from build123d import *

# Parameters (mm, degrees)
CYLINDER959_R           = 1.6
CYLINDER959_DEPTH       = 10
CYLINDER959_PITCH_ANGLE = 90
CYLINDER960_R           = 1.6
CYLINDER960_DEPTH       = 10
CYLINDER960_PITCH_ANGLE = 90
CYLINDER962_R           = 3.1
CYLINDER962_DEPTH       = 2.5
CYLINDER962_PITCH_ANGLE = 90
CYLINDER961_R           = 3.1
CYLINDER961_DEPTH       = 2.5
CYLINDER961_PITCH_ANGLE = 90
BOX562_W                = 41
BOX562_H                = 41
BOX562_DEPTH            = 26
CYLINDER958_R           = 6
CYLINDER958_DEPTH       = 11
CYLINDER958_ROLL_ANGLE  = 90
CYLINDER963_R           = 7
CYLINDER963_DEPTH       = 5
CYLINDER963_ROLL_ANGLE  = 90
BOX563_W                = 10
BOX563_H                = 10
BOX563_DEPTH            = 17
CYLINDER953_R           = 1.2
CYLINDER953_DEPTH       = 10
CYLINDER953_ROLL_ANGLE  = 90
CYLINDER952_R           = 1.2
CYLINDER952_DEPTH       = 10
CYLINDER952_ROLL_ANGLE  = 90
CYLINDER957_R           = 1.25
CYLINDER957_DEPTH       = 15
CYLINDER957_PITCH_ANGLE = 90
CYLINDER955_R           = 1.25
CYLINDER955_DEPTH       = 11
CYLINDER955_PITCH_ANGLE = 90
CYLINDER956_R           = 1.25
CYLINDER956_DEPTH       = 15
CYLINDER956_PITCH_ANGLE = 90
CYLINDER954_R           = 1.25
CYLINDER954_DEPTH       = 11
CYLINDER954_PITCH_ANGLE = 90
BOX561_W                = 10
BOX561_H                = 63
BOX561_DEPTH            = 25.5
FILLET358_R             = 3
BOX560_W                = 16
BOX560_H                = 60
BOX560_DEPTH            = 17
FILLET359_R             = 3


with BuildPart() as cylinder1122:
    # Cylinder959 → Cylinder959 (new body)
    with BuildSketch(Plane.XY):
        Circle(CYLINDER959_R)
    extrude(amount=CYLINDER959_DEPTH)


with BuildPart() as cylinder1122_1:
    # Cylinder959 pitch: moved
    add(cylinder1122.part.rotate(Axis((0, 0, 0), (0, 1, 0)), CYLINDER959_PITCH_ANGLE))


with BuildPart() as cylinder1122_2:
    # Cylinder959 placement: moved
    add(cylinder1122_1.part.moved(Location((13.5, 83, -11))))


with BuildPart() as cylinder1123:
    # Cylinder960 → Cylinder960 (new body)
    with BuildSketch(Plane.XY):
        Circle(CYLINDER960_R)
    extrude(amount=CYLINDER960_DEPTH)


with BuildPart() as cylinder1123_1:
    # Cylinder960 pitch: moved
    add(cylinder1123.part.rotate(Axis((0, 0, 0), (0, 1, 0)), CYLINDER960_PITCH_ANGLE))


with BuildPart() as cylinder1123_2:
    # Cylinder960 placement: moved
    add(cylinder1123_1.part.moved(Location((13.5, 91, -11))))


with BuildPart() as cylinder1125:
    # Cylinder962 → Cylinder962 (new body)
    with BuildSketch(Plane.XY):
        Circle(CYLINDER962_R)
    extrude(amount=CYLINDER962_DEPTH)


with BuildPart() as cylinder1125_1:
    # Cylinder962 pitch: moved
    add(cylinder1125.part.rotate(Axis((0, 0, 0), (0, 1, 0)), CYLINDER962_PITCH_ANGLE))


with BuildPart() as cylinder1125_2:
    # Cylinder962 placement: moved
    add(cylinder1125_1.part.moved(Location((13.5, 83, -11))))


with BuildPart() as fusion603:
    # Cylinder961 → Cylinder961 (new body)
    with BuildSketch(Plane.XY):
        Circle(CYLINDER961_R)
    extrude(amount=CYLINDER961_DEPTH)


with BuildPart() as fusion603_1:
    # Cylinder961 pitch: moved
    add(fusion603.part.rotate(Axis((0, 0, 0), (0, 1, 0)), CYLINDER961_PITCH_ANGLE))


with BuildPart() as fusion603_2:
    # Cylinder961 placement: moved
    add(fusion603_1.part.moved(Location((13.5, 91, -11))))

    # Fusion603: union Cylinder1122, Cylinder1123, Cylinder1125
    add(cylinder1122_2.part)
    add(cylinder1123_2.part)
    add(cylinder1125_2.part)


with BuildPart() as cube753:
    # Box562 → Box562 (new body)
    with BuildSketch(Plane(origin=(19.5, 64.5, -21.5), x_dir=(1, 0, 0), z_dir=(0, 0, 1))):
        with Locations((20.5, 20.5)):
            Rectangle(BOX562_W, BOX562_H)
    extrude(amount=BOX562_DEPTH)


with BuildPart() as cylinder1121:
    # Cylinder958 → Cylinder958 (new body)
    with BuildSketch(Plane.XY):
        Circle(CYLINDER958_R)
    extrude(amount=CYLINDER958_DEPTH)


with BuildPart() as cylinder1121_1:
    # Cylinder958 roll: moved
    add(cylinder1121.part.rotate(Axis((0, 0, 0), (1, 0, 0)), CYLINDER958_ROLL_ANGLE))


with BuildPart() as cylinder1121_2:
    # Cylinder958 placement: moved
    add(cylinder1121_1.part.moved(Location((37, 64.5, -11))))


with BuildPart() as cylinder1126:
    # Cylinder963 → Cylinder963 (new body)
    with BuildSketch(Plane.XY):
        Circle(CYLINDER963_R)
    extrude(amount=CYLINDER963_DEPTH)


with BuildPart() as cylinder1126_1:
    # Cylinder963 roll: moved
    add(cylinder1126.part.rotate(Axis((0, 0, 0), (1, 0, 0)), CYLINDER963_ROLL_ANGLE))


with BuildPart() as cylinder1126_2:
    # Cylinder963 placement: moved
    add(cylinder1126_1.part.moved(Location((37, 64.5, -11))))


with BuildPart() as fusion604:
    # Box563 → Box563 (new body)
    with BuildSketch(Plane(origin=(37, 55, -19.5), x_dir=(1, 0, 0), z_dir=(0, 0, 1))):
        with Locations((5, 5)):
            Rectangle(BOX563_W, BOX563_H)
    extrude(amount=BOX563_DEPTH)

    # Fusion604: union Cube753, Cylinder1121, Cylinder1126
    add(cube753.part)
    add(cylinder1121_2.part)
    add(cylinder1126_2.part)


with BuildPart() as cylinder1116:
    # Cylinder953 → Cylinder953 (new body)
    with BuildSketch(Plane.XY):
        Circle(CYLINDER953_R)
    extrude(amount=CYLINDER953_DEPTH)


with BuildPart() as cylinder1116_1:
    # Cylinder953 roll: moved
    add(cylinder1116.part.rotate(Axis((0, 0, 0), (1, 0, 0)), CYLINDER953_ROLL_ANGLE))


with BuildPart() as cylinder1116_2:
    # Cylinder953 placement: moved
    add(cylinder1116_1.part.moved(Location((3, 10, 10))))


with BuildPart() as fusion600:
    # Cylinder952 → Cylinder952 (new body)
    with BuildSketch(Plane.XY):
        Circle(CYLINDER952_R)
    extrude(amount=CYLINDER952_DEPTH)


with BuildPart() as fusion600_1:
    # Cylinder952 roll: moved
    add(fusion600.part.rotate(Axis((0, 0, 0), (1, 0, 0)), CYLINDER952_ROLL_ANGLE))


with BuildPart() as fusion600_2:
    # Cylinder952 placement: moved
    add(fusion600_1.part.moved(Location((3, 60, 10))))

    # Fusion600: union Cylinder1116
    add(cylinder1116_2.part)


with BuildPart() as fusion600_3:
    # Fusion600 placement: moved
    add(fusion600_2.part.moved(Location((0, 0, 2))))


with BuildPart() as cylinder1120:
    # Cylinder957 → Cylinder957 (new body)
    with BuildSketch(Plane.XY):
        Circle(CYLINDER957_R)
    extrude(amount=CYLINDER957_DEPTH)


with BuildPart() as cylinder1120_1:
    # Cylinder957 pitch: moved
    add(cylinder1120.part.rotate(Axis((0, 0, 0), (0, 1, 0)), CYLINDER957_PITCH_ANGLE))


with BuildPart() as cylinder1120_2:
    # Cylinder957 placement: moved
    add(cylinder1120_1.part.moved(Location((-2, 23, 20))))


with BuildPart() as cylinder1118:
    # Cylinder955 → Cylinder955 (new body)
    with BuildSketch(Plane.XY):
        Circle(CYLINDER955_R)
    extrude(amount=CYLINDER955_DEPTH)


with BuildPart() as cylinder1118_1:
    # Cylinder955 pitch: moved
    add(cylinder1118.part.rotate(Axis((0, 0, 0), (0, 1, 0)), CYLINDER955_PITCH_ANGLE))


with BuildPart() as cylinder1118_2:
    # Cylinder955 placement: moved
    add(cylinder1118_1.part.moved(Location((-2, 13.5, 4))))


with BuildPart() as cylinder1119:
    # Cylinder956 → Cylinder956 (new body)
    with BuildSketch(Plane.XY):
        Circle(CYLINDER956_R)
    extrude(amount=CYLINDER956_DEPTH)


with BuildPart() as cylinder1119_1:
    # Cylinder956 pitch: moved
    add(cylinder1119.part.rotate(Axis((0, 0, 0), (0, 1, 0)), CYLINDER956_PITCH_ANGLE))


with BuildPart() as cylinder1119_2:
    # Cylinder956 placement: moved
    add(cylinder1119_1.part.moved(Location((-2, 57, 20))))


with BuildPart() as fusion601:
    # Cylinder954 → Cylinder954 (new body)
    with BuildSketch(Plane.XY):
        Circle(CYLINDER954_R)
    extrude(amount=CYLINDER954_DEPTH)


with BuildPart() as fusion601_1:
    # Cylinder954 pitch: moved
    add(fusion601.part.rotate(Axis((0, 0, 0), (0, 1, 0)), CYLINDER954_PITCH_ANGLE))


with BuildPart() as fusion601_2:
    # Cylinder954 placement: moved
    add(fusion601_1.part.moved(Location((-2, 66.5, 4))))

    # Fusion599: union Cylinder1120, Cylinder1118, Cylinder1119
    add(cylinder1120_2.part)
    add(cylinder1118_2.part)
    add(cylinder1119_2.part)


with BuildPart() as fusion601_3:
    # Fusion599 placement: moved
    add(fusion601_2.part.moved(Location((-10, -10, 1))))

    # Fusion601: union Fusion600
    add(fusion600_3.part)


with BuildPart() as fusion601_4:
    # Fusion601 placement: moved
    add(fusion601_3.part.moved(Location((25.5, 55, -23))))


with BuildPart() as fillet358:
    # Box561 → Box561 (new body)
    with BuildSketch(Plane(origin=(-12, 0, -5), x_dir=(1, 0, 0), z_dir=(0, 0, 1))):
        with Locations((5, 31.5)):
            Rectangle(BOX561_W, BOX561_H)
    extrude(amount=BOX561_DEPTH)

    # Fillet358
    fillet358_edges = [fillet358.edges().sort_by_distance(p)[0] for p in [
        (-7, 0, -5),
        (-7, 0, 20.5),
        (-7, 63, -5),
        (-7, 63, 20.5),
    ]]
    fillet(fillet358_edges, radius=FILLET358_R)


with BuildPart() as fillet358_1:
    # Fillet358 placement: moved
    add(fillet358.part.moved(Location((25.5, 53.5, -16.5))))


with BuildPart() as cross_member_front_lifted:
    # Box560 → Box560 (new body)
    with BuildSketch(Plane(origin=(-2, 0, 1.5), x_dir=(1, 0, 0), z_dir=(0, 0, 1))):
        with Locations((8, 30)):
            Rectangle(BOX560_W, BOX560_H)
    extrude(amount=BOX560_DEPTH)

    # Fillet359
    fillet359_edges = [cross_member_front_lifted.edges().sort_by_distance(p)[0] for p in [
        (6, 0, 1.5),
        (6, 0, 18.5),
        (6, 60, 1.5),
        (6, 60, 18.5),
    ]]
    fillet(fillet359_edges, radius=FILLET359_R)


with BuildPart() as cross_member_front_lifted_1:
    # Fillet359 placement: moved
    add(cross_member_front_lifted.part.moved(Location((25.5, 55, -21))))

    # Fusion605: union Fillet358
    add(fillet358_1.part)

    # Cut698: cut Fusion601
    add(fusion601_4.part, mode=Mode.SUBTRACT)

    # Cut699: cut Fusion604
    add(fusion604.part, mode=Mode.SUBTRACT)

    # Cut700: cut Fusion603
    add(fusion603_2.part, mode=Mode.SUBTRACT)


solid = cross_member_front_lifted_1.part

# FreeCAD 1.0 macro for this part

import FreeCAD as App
import Part
import Sketcher


def edges_at(feature, points):
    """Names of the edges that pass closest to the given points."""
    edges = feature.Shape.Edges
    near = lambda p: min(range(len(edges)), key=lambda i: edges[i].distToShape(Part.Vertex(*p))[0])
    return sorted({f"Edge{near(p) + 1}" for p in points})


def add_polygon(sketch, points):
    """Adds a closed chain of lines whose ends are joined by coincident constraints."""
    first, n = sketch.GeometryCount, len(points)
    for a, b in zip(points, points[1:] + points[:1]):
        sketch.addGeometry(Part.LineSegment(App.Vector(*a, 0), App.Vector(*b, 0)), False)
    for i in range(n):
        sketch.addConstraint(Sketcher.Constraint("Coincident", first + i, 2, first + (i + 1) % n, 1))

doc = App.newDocument("Part")
body = doc.addObject("PartDesign::Body", "Body")

# Sketch on XY plane
sketch1 = body.newObject("Sketcher::SketchObject", "Sketch")
sketch1.AttachmentSupport = (doc.getObject("XY_Plane"), [""])
sketch1.MapMode = "FlatFace"
sketch1.addGeometry(Part.Circle(App.Vector(0, 0, 0), App.Vector(0, 0, 1), 1.6), False)
sketch1.addConstraint([
    Sketcher.Constraint("Coincident", 0, 3, -1, 1),
    Sketcher.Constraint("Diameter", 0, 3.2),
])
pad1 = body.newObject("PartDesign::Pad", "Pad")
pad1.Profile = sketch1
pad1.Length = 10
body2 = doc.addObject("PartDesign::Body", "Body001")
doc.recompute()

body.Placement = App.Placement(App.Vector(0, 0, 0), App.Rotation(App.Vector(0, 1, 0), 90))
boolean = body2.newObject("PartDesign::Boolean", "Boolean")
boolean.Type = "Fuse"
boolean.addObjects([body])
body3 = doc.addObject("PartDesign::Body", "Body002")
doc.recompute()

body2.Placement = App.Placement(App.Vector(13.5, 83, -11), App.Rotation(App.Vector(0, 0, 1), 0))
boolean2 = body3.newObject("PartDesign::Boolean", "Boolean001")
boolean2.Type = "Fuse"
boolean2.addObjects([body2])
body4 = doc.addObject("PartDesign::Body", "Body003")

# Sketch on XY plane
sketch2 = body4.newObject("Sketcher::SketchObject", "Sketch001")
sketch2.AttachmentSupport = (doc.getObject("XY_Plane003"), [""])
sketch2.MapMode = "FlatFace"
sketch2.addGeometry(Part.Circle(App.Vector(0, 0, 0), App.Vector(0, 0, 1), 1.6), False)
sketch2.addConstraint([
    Sketcher.Constraint("Coincident", 0, 3, -1, 1),
    Sketcher.Constraint("Diameter", 0, 3.2),
])
pad2 = body4.newObject("PartDesign::Pad", "Pad001")
pad2.Profile = sketch2
pad2.Length = 10
body5 = doc.addObject("PartDesign::Body", "Body004")
doc.recompute()

body4.Placement = App.Placement(App.Vector(0, 0, 0), App.Rotation(App.Vector(0, 1, 0), 90))
boolean3 = body5.newObject("PartDesign::Boolean", "Boolean002")
boolean3.Type = "Fuse"
boolean3.addObjects([body4])
body6 = doc.addObject("PartDesign::Body", "Body005")
doc.recompute()

body5.Placement = App.Placement(App.Vector(13.5, 91, -11), App.Rotation(App.Vector(0, 0, 1), 0))
boolean4 = body6.newObject("PartDesign::Boolean", "Boolean003")
boolean4.Type = "Fuse"
boolean4.addObjects([body5])
body7 = doc.addObject("PartDesign::Body", "Body006")

# Sketch on XY plane
sketch3 = body7.newObject("Sketcher::SketchObject", "Sketch002")
sketch3.AttachmentSupport = (doc.getObject("XY_Plane006"), [""])
sketch3.MapMode = "FlatFace"
sketch3.addGeometry(Part.Circle(App.Vector(0, 0, 0), App.Vector(0, 0, 1), 3.1), False)
sketch3.addConstraint([
    Sketcher.Constraint("Coincident", 0, 3, -1, 1),
    Sketcher.Constraint("Diameter", 0, 6.2),
])
pad3 = body7.newObject("PartDesign::Pad", "Pad002")
pad3.Profile = sketch3
pad3.Length = 2.5
body8 = doc.addObject("PartDesign::Body", "Body007")
doc.recompute()

body7.Placement = App.Placement(App.Vector(0, 0, 0), App.Rotation(App.Vector(0, 1, 0), 90))
boolean5 = body8.newObject("PartDesign::Boolean", "Boolean004")
boolean5.Type = "Fuse"
boolean5.addObjects([body7])
body9 = doc.addObject("PartDesign::Body", "Body008")
doc.recompute()

body8.Placement = App.Placement(App.Vector(13.5, 83, -11), App.Rotation(App.Vector(0, 0, 1), 0))
boolean6 = body9.newObject("PartDesign::Boolean", "Boolean005")
boolean6.Type = "Fuse"
boolean6.addObjects([body8])
body10 = doc.addObject("PartDesign::Body", "Body009")

# Sketch on XY plane
sketch4 = body10.newObject("Sketcher::SketchObject", "Sketch003")
sketch4.AttachmentSupport = (doc.getObject("XY_Plane009"), [""])
sketch4.MapMode = "FlatFace"
sketch4.addGeometry(Part.Circle(App.Vector(0, 0, 0), App.Vector(0, 0, 1), 3.1), False)
sketch4.addConstraint([
    Sketcher.Constraint("Coincident", 0, 3, -1, 1),
    Sketcher.Constraint("Diameter", 0, 6.2),
])
pad4 = body10.newObject("PartDesign::Pad", "Pad003")
pad4.Profile = sketch4
pad4.Length = 2.5
body11 = doc.addObject("PartDesign::Body", "Body010")
doc.recompute()

body10.Placement = App.Placement(App.Vector(0, 0, 0), App.Rotation(App.Vector(0, 1, 0), 90))
boolean7 = body11.newObject("PartDesign::Boolean", "Boolean006")
boolean7.Type = "Fuse"
boolean7.addObjects([body10])
body12 = doc.addObject("PartDesign::Body", "Body011")
body12.AllowCompound = True
doc.recompute()

body11.Placement = App.Placement(App.Vector(13.5, 91, -11), App.Rotation(App.Vector(0, 0, 1), 0))
boolean8 = body12.newObject("PartDesign::Boolean", "Boolean007")
boolean8.Type = "Fuse"
boolean8.addObjects([body11])
doc.recompute()

boolean9 = body12.newObject("PartDesign::Boolean", "Boolean008")
boolean9.Type = "Fuse"
boolean9.addObjects([body3])
doc.recompute()

boolean10 = body12.newObject("PartDesign::Boolean", "Boolean009")
boolean10.Type = "Fuse"
boolean10.addObjects([body6])
doc.recompute()

boolean11 = body12.newObject("PartDesign::Boolean", "Boolean010")
boolean11.Type = "Fuse"
boolean11.addObjects([body9])
body13 = doc.addObject("PartDesign::Body", "Body012")

# Sketch on XY plane
sketch5 = body13.newObject("Sketcher::SketchObject", "Sketch004")
sketch5.AttachmentSupport = (doc.getObject("XY_Plane012"), [""])
sketch5.MapMode = "FlatFace"
sketch5.AttachmentOffset = App.Placement(App.Vector(0, 0, -21.5), App.Rotation())
add_polygon(sketch5, [(20, 106), (20, 64), (60, 64), (60, 106)])  # lines 0-3
sketch5.addConstraint([
    Sketcher.Constraint("Vertical", 0),
    Sketcher.Constraint("Horizontal", 1),
    Sketcher.Constraint("Vertical", 2),
    Sketcher.Constraint("Horizontal", 3),
    Sketcher.Constraint("Equal", 3, 0),
    Sketcher.Constraint("DistanceX", 1, 1, 1, 2, 41.0),
    Sketcher.Constraint("DistanceX", -1, 1, 0, 2, 19.5),
    Sketcher.Constraint("DistanceY", -1, 1, 0, 2, 64.5),
])
pad5 = body13.newObject("PartDesign::Pad", "Pad004")
pad5.Profile = sketch5
pad5.Length = 26
body14 = doc.addObject("PartDesign::Body", "Body013")

# Sketch on XY plane
sketch6 = body14.newObject("Sketcher::SketchObject", "Sketch005")
sketch6.AttachmentSupport = (doc.getObject("XY_Plane013"), [""])
sketch6.MapMode = "FlatFace"
sketch6.addGeometry(Part.Circle(App.Vector(0, 0, 0), App.Vector(0, 0, 1), 6), False)
sketch6.addConstraint([
    Sketcher.Constraint("Coincident", 0, 3, -1, 1),
    Sketcher.Constraint("Diameter", 0, 12.0),
])
pad6 = body14.newObject("PartDesign::Pad", "Pad005")
pad6.Profile = sketch6
pad6.Length = 11
body15 = doc.addObject("PartDesign::Body", "Body014")
doc.recompute()

body14.Placement = App.Placement(App.Vector(0, 0, 0), App.Rotation(App.Vector(1, 0, 0), 90))
boolean12 = body15.newObject("PartDesign::Boolean", "Boolean011")
boolean12.Type = "Fuse"
boolean12.addObjects([body14])
body16 = doc.addObject("PartDesign::Body", "Body015")
doc.recompute()

body15.Placement = App.Placement(App.Vector(37, 64.5, -11), App.Rotation(App.Vector(0, 0, 1), 0))
boolean13 = body16.newObject("PartDesign::Boolean", "Boolean012")
boolean13.Type = "Fuse"
boolean13.addObjects([body15])
body17 = doc.addObject("PartDesign::Body", "Body016")

# Sketch on XY plane
sketch7 = body17.newObject("Sketcher::SketchObject", "Sketch006")
sketch7.AttachmentSupport = (doc.getObject("XY_Plane016"), [""])
sketch7.MapMode = "FlatFace"
sketch7.addGeometry(Part.Circle(App.Vector(0, 0, 0), App.Vector(0, 0, 1), 7), False)
sketch7.addConstraint([
    Sketcher.Constraint("Coincident", 0, 3, -1, 1),
    Sketcher.Constraint("Diameter", 0, 14.0),
])
pad7 = body17.newObject("PartDesign::Pad", "Pad006")
pad7.Profile = sketch7
pad7.Length = 5
body18 = doc.addObject("PartDesign::Body", "Body017")
doc.recompute()

body17.Placement = App.Placement(App.Vector(0, 0, 0), App.Rotation(App.Vector(1, 0, 0), 90))
boolean14 = body18.newObject("PartDesign::Boolean", "Boolean013")
boolean14.Type = "Fuse"
boolean14.addObjects([body17])
body19 = doc.addObject("PartDesign::Body", "Body018")
doc.recompute()

body18.Placement = App.Placement(App.Vector(37, 64.5, -11), App.Rotation(App.Vector(0, 0, 1), 0))
boolean15 = body19.newObject("PartDesign::Boolean", "Boolean014")
boolean15.Type = "Fuse"
boolean15.addObjects([body18])
body20 = doc.addObject("PartDesign::Body", "Body019")

# Sketch on XY plane
sketch8 = body20.newObject("Sketcher::SketchObject", "Sketch007")
sketch8.AttachmentSupport = (doc.getObject("XY_Plane019"), [""])
sketch8.MapMode = "FlatFace"
sketch8.AttachmentOffset = App.Placement(App.Vector(0, 0, -19.5), App.Rotation())
add_polygon(sketch8, [(37, 65), (37, 55), (47, 55), (47, 65)])  # lines 0-3
sketch8.addConstraint([
    Sketcher.Constraint("Vertical", 0),
    Sketcher.Constraint("Horizontal", 1),
    Sketcher.Constraint("Vertical", 2),
    Sketcher.Constraint("Horizontal", 3),
    Sketcher.Constraint("Equal", 3, 0),
    Sketcher.Constraint("DistanceX", 1, 1, 1, 2, 10.0),
    Sketcher.Constraint("DistanceX", -1, 1, 0, 2, 37.0),
    Sketcher.Constraint("DistanceY", -1, 1, 0, 2, 55.0),
])
pad8 = body20.newObject("PartDesign::Pad", "Pad007")
pad8.Profile = sketch8
pad8.Length = 17
doc.recompute()

boolean16 = body20.newObject("PartDesign::Boolean", "Boolean015")
boolean16.Type = "Fuse"
boolean16.addObjects([body13])
doc.recompute()

boolean17 = body20.newObject("PartDesign::Boolean", "Boolean016")
boolean17.Type = "Fuse"
boolean17.addObjects([body16])
doc.recompute()

boolean18 = body20.newObject("PartDesign::Boolean", "Boolean017")
boolean18.Type = "Fuse"
boolean18.addObjects([body19])
body21 = doc.addObject("PartDesign::Body", "Body020")

# Sketch on XY plane
sketch9 = body21.newObject("Sketcher::SketchObject", "Sketch008")
sketch9.AttachmentSupport = (doc.getObject("XY_Plane020"), [""])
sketch9.MapMode = "FlatFace"
sketch9.addGeometry(Part.Circle(App.Vector(0, 0, 0), App.Vector(0, 0, 1), 1.2), False)
sketch9.addConstraint([
    Sketcher.Constraint("Coincident", 0, 3, -1, 1),
    Sketcher.Constraint("Diameter", 0, 2.4),
])
pad9 = body21.newObject("PartDesign::Pad", "Pad008")
pad9.Profile = sketch9
pad9.Length = 10
body22 = doc.addObject("PartDesign::Body", "Body021")
doc.recompute()

body21.Placement = App.Placement(App.Vector(0, 0, 0), App.Rotation(App.Vector(1, 0, 0), 90))
boolean19 = body22.newObject("PartDesign::Boolean", "Boolean018")
boolean19.Type = "Fuse"
boolean19.addObjects([body21])
body23 = doc.addObject("PartDesign::Body", "Body022")
doc.recompute()

body22.Placement = App.Placement(App.Vector(3, 10, 10), App.Rotation(App.Vector(0, 0, 1), 0))
boolean20 = body23.newObject("PartDesign::Boolean", "Boolean019")
boolean20.Type = "Fuse"
boolean20.addObjects([body22])
body24 = doc.addObject("PartDesign::Body", "Body023")

# Sketch on XY plane
sketch10 = body24.newObject("Sketcher::SketchObject", "Sketch009")
sketch10.AttachmentSupport = (doc.getObject("XY_Plane023"), [""])
sketch10.MapMode = "FlatFace"
sketch10.addGeometry(Part.Circle(App.Vector(0, 0, 0), App.Vector(0, 0, 1), 1.2), False)
sketch10.addConstraint([
    Sketcher.Constraint("Coincident", 0, 3, -1, 1),
    Sketcher.Constraint("Diameter", 0, 2.4),
])
pad10 = body24.newObject("PartDesign::Pad", "Pad009")
pad10.Profile = sketch10
pad10.Length = 10
body25 = doc.addObject("PartDesign::Body", "Body024")
doc.recompute()

body24.Placement = App.Placement(App.Vector(0, 0, 0), App.Rotation(App.Vector(1, 0, 0), 90))
boolean21 = body25.newObject("PartDesign::Boolean", "Boolean020")
boolean21.Type = "Fuse"
boolean21.addObjects([body24])
body26 = doc.addObject("PartDesign::Body", "Body025")
body26.AllowCompound = True
doc.recompute()

body25.Placement = App.Placement(App.Vector(3, 60, 10), App.Rotation(App.Vector(0, 0, 1), 0))
boolean22 = body26.newObject("PartDesign::Boolean", "Boolean021")
boolean22.Type = "Fuse"
boolean22.addObjects([body25])
doc.recompute()

boolean23 = body26.newObject("PartDesign::Boolean", "Boolean022")
boolean23.Type = "Fuse"
boolean23.addObjects([body23])
body27 = doc.addObject("PartDesign::Body", "Body026")
body27.AllowCompound = True
doc.recompute()

body26.Placement = App.Placement(App.Vector(0, 0, 2), App.Rotation(App.Vector(0, 0, 1), 0))
boolean24 = body27.newObject("PartDesign::Boolean", "Boolean023")
boolean24.Type = "Fuse"
boolean24.addObjects([body26])
body28 = doc.addObject("PartDesign::Body", "Body027")

# Sketch on XY plane
sketch11 = body28.newObject("Sketcher::SketchObject", "Sketch010")
sketch11.AttachmentSupport = (doc.getObject("XY_Plane027"), [""])
sketch11.MapMode = "FlatFace"
sketch11.addGeometry(Part.Circle(App.Vector(0, 0, 0), App.Vector(0, 0, 1), 1.2), False)
sketch11.addConstraint([
    Sketcher.Constraint("Coincident", 0, 3, -1, 1),
    Sketcher.Constraint("Diameter", 0, 2.5),
])
pad11 = body28.newObject("PartDesign::Pad", "Pad010")
pad11.Profile = sketch11
pad11.Length = 15
body29 = doc.addObject("PartDesign::Body", "Body028")
doc.recompute()

body28.Placement = App.Placement(App.Vector(0, 0, 0), App.Rotation(App.Vector(0, 1, 0), 90))
boolean25 = body29.newObject("PartDesign::Boolean", "Boolean024")
boolean25.Type = "Fuse"
boolean25.addObjects([body28])
body30 = doc.addObject("PartDesign::Body", "Body029")
doc.recompute()

body29.Placement = App.Placement(App.Vector(-2, 23, 20), App.Rotation(App.Vector(0, 0, 1), 0))
boolean26 = body30.newObject("PartDesign::Boolean", "Boolean025")
boolean26.Type = "Fuse"
boolean26.addObjects([body29])
body31 = doc.addObject("PartDesign::Body", "Body030")

# Sketch on XY plane
sketch12 = body31.newObject("Sketcher::SketchObject", "Sketch011")
sketch12.AttachmentSupport = (doc.getObject("XY_Plane030"), [""])
sketch12.MapMode = "FlatFace"
sketch12.addGeometry(Part.Circle(App.Vector(0, 0, 0), App.Vector(0, 0, 1), 1.2), False)
sketch12.addConstraint([
    Sketcher.Constraint("Coincident", 0, 3, -1, 1),
    Sketcher.Constraint("Diameter", 0, 2.5),
])
pad12 = body31.newObject("PartDesign::Pad", "Pad011")
pad12.Profile = sketch12
pad12.Length = 11
body32 = doc.addObject("PartDesign::Body", "Body031")
doc.recompute()

body31.Placement = App.Placement(App.Vector(0, 0, 0), App.Rotation(App.Vector(0, 1, 0), 90))
boolean27 = body32.newObject("PartDesign::Boolean", "Boolean026")
boolean27.Type = "Fuse"
boolean27.addObjects([body31])
body33 = doc.addObject("PartDesign::Body", "Body032")
doc.recompute()

body32.Placement = App.Placement(App.Vector(-2, 13.5, 4), App.Rotation(App.Vector(0, 0, 1), 0))
boolean28 = body33.newObject("PartDesign::Boolean", "Boolean027")
boolean28.Type = "Fuse"
boolean28.addObjects([body32])
body34 = doc.addObject("PartDesign::Body", "Body033")

# Sketch on XY plane
sketch13 = body34.newObject("Sketcher::SketchObject", "Sketch012")
sketch13.AttachmentSupport = (doc.getObject("XY_Plane033"), [""])
sketch13.MapMode = "FlatFace"
sketch13.addGeometry(Part.Circle(App.Vector(0, 0, 0), App.Vector(0, 0, 1), 1.2), False)
sketch13.addConstraint([
    Sketcher.Constraint("Coincident", 0, 3, -1, 1),
    Sketcher.Constraint("Diameter", 0, 2.5),
])
pad13 = body34.newObject("PartDesign::Pad", "Pad012")
pad13.Profile = sketch13
pad13.Length = 15
body35 = doc.addObject("PartDesign::Body", "Body034")
doc.recompute()

body34.Placement = App.Placement(App.Vector(0, 0, 0), App.Rotation(App.Vector(0, 1, 0), 90))
boolean29 = body35.newObject("PartDesign::Boolean", "Boolean028")
boolean29.Type = "Fuse"
boolean29.addObjects([body34])
body36 = doc.addObject("PartDesign::Body", "Body035")
doc.recompute()

body35.Placement = App.Placement(App.Vector(-2, 57, 20), App.Rotation(App.Vector(0, 0, 1), 0))
boolean30 = body36.newObject("PartDesign::Boolean", "Boolean029")
boolean30.Type = "Fuse"
boolean30.addObjects([body35])
body37 = doc.addObject("PartDesign::Body", "Body036")

# Sketch on XY plane
sketch14 = body37.newObject("Sketcher::SketchObject", "Sketch013")
sketch14.AttachmentSupport = (doc.getObject("XY_Plane036"), [""])
sketch14.MapMode = "FlatFace"
sketch14.addGeometry(Part.Circle(App.Vector(0, 0, 0), App.Vector(0, 0, 1), 1.2), False)
sketch14.addConstraint([
    Sketcher.Constraint("Coincident", 0, 3, -1, 1),
    Sketcher.Constraint("Diameter", 0, 2.5),
])
pad14 = body37.newObject("PartDesign::Pad", "Pad013")
pad14.Profile = sketch14
pad14.Length = 11
body38 = doc.addObject("PartDesign::Body", "Body037")
doc.recompute()

body37.Placement = App.Placement(App.Vector(0, 0, 0), App.Rotation(App.Vector(0, 1, 0), 90))
boolean31 = body38.newObject("PartDesign::Boolean", "Boolean030")
boolean31.Type = "Fuse"
boolean31.addObjects([body37])
body39 = doc.addObject("PartDesign::Body", "Body038")
body39.AllowCompound = True
doc.recompute()

body38.Placement = App.Placement(App.Vector(-2, 66.5, 4), App.Rotation(App.Vector(0, 0, 1), 0))
boolean32 = body39.newObject("PartDesign::Boolean", "Boolean031")
boolean32.Type = "Fuse"
boolean32.addObjects([body38])
doc.recompute()

boolean33 = body39.newObject("PartDesign::Boolean", "Boolean032")
boolean33.Type = "Fuse"
boolean33.addObjects([body30])
doc.recompute()

boolean34 = body39.newObject("PartDesign::Boolean", "Boolean033")
boolean34.Type = "Fuse"
boolean34.addObjects([body33])
doc.recompute()

boolean35 = body39.newObject("PartDesign::Boolean", "Boolean034")
boolean35.Type = "Fuse"
boolean35.addObjects([body36])
body40 = doc.addObject("PartDesign::Body", "Body039")
body40.AllowCompound = True
doc.recompute()

body39.Placement = App.Placement(App.Vector(-10, -10, 1), App.Rotation(App.Vector(0, 0, 1), 0))
boolean36 = body40.newObject("PartDesign::Boolean", "Boolean035")
boolean36.Type = "Fuse"
boolean36.addObjects([body39])
doc.recompute()

boolean37 = body40.newObject("PartDesign::Boolean", "Boolean036")
boolean37.Type = "Fuse"
boolean37.addObjects([body27])
body41 = doc.addObject("PartDesign::Body", "Body040")
body41.AllowCompound = True
doc.recompute()

body40.Placement = App.Placement(App.Vector(25.5, 55, -23), App.Rotation(App.Vector(0, 0, 1), 0))
boolean38 = body41.newObject("PartDesign::Boolean", "Boolean037")
boolean38.Type = "Fuse"
boolean38.addObjects([body40])
body42 = doc.addObject("PartDesign::Body", "Body041")

# Sketch on XY plane
sketch15 = body42.newObject("Sketcher::SketchObject", "Sketch014")
sketch15.AttachmentSupport = (doc.getObject("XY_Plane041"), [""])
sketch15.MapMode = "FlatFace"
sketch15.AttachmentOffset = App.Placement(App.Vector(0, 0, -5), App.Rotation())
add_polygon(sketch15, [(-12, 63), (-12, 0), (-2, 0), (-2, 63)])  # lines 0-3
sketch15.addConstraint([
    Sketcher.Constraint("Vertical", 0),
    Sketcher.Constraint("Horizontal", 1),
    Sketcher.Constraint("Vertical", 2),
    Sketcher.Constraint("Horizontal", 3),
    Sketcher.Constraint("PointOnObject", 0, 2, -1),
    Sketcher.Constraint("DistanceX", 1, 1, 1, 2, 10.0),
    Sketcher.Constraint("DistanceY", 0, 2, 0, 1, 63.0),
    Sketcher.Constraint("DistanceX", 0, 2, -1, 1, 12.0),
])
pad15 = body42.newObject("PartDesign::Pad", "Pad014")
pad15.Profile = sketch15
pad15.Length = 25.5
doc.recompute()

fillet = body42.newObject("PartDesign::Fillet", "Fillet")
fillet.Base = (pad15, edges_at(pad15, [
    (-7, 0, -5),
    (-7, 0, 20.5),
    (-7, 63, -5),
    (-7, 63, 20.5),
]))
fillet.Radius = 3
body43 = doc.addObject("PartDesign::Body", "Body042")
doc.recompute()

body42.Placement = App.Placement(App.Vector(25.5, 53.5, -16.5), App.Rotation(App.Vector(0, 0, 1), 0))
boolean39 = body43.newObject("PartDesign::Boolean", "Boolean038")
boolean39.Type = "Fuse"
boolean39.addObjects([body42])
body44 = doc.addObject("PartDesign::Body", "Body043")

# Sketch on XY plane
sketch16 = body44.newObject("Sketcher::SketchObject", "Sketch015")
sketch16.AttachmentSupport = (doc.getObject("XY_Plane043"), [""])
sketch16.MapMode = "FlatFace"
sketch16.AttachmentOffset = App.Placement(App.Vector(0, 0, 1.5), App.Rotation())
add_polygon(sketch16, [(-2, 60), (-2, 0), (14, 0), (14, 60)])  # lines 0-3
sketch16.addConstraint([
    Sketcher.Constraint("Vertical", 0),
    Sketcher.Constraint("Horizontal", 1),
    Sketcher.Constraint("Vertical", 2),
    Sketcher.Constraint("Horizontal", 3),
    Sketcher.Constraint("PointOnObject", 0, 2, -1),
    Sketcher.Constraint("DistanceX", 1, 1, 1, 2, 16.0),
    Sketcher.Constraint("DistanceY", 0, 2, 0, 1, 60.0),
    Sketcher.Constraint("DistanceX", 0, 2, -1, 1, 2.0),
])
pad16 = body44.newObject("PartDesign::Pad", "Pad015")
pad16.Profile = sketch16
pad16.Length = 17
doc.recompute()

fillet2 = body44.newObject("PartDesign::Fillet", "Fillet001")
fillet2.Base = (pad16, edges_at(pad16, [
    (6, 0, 1.5),
    (6, 0, 18.5),
    (6, 60, 1.5),
    (6, 60, 18.5),
]))
fillet2.Radius = 3
body45 = doc.addObject("PartDesign::Body", "Body044")
doc.recompute()

body44.Placement = App.Placement(App.Vector(25.5, 55, -21), App.Rotation(App.Vector(0, 0, 1), 0))
boolean40 = body45.newObject("PartDesign::Boolean", "Boolean039")
boolean40.Type = "Fuse"
boolean40.addObjects([body44])
doc.recompute()

boolean41 = body45.newObject("PartDesign::Boolean", "Boolean040")
boolean41.Type = "Fuse"
boolean41.addObjects([body43])
doc.recompute()

boolean42 = body45.newObject("PartDesign::Boolean", "Boolean041")
boolean42.Type = "Cut"
boolean42.addObjects([body41])
doc.recompute()

boolean43 = body45.newObject("PartDesign::Boolean", "Boolean042")
boolean43.Type = "Cut"
boolean43.addObjects([body20])
doc.recompute()

boolean44 = body45.newObject("PartDesign::Boolean", "Boolean043")
boolean44.Type = "Cut"
boolean44.addObjects([body12])

doc.recompute()
